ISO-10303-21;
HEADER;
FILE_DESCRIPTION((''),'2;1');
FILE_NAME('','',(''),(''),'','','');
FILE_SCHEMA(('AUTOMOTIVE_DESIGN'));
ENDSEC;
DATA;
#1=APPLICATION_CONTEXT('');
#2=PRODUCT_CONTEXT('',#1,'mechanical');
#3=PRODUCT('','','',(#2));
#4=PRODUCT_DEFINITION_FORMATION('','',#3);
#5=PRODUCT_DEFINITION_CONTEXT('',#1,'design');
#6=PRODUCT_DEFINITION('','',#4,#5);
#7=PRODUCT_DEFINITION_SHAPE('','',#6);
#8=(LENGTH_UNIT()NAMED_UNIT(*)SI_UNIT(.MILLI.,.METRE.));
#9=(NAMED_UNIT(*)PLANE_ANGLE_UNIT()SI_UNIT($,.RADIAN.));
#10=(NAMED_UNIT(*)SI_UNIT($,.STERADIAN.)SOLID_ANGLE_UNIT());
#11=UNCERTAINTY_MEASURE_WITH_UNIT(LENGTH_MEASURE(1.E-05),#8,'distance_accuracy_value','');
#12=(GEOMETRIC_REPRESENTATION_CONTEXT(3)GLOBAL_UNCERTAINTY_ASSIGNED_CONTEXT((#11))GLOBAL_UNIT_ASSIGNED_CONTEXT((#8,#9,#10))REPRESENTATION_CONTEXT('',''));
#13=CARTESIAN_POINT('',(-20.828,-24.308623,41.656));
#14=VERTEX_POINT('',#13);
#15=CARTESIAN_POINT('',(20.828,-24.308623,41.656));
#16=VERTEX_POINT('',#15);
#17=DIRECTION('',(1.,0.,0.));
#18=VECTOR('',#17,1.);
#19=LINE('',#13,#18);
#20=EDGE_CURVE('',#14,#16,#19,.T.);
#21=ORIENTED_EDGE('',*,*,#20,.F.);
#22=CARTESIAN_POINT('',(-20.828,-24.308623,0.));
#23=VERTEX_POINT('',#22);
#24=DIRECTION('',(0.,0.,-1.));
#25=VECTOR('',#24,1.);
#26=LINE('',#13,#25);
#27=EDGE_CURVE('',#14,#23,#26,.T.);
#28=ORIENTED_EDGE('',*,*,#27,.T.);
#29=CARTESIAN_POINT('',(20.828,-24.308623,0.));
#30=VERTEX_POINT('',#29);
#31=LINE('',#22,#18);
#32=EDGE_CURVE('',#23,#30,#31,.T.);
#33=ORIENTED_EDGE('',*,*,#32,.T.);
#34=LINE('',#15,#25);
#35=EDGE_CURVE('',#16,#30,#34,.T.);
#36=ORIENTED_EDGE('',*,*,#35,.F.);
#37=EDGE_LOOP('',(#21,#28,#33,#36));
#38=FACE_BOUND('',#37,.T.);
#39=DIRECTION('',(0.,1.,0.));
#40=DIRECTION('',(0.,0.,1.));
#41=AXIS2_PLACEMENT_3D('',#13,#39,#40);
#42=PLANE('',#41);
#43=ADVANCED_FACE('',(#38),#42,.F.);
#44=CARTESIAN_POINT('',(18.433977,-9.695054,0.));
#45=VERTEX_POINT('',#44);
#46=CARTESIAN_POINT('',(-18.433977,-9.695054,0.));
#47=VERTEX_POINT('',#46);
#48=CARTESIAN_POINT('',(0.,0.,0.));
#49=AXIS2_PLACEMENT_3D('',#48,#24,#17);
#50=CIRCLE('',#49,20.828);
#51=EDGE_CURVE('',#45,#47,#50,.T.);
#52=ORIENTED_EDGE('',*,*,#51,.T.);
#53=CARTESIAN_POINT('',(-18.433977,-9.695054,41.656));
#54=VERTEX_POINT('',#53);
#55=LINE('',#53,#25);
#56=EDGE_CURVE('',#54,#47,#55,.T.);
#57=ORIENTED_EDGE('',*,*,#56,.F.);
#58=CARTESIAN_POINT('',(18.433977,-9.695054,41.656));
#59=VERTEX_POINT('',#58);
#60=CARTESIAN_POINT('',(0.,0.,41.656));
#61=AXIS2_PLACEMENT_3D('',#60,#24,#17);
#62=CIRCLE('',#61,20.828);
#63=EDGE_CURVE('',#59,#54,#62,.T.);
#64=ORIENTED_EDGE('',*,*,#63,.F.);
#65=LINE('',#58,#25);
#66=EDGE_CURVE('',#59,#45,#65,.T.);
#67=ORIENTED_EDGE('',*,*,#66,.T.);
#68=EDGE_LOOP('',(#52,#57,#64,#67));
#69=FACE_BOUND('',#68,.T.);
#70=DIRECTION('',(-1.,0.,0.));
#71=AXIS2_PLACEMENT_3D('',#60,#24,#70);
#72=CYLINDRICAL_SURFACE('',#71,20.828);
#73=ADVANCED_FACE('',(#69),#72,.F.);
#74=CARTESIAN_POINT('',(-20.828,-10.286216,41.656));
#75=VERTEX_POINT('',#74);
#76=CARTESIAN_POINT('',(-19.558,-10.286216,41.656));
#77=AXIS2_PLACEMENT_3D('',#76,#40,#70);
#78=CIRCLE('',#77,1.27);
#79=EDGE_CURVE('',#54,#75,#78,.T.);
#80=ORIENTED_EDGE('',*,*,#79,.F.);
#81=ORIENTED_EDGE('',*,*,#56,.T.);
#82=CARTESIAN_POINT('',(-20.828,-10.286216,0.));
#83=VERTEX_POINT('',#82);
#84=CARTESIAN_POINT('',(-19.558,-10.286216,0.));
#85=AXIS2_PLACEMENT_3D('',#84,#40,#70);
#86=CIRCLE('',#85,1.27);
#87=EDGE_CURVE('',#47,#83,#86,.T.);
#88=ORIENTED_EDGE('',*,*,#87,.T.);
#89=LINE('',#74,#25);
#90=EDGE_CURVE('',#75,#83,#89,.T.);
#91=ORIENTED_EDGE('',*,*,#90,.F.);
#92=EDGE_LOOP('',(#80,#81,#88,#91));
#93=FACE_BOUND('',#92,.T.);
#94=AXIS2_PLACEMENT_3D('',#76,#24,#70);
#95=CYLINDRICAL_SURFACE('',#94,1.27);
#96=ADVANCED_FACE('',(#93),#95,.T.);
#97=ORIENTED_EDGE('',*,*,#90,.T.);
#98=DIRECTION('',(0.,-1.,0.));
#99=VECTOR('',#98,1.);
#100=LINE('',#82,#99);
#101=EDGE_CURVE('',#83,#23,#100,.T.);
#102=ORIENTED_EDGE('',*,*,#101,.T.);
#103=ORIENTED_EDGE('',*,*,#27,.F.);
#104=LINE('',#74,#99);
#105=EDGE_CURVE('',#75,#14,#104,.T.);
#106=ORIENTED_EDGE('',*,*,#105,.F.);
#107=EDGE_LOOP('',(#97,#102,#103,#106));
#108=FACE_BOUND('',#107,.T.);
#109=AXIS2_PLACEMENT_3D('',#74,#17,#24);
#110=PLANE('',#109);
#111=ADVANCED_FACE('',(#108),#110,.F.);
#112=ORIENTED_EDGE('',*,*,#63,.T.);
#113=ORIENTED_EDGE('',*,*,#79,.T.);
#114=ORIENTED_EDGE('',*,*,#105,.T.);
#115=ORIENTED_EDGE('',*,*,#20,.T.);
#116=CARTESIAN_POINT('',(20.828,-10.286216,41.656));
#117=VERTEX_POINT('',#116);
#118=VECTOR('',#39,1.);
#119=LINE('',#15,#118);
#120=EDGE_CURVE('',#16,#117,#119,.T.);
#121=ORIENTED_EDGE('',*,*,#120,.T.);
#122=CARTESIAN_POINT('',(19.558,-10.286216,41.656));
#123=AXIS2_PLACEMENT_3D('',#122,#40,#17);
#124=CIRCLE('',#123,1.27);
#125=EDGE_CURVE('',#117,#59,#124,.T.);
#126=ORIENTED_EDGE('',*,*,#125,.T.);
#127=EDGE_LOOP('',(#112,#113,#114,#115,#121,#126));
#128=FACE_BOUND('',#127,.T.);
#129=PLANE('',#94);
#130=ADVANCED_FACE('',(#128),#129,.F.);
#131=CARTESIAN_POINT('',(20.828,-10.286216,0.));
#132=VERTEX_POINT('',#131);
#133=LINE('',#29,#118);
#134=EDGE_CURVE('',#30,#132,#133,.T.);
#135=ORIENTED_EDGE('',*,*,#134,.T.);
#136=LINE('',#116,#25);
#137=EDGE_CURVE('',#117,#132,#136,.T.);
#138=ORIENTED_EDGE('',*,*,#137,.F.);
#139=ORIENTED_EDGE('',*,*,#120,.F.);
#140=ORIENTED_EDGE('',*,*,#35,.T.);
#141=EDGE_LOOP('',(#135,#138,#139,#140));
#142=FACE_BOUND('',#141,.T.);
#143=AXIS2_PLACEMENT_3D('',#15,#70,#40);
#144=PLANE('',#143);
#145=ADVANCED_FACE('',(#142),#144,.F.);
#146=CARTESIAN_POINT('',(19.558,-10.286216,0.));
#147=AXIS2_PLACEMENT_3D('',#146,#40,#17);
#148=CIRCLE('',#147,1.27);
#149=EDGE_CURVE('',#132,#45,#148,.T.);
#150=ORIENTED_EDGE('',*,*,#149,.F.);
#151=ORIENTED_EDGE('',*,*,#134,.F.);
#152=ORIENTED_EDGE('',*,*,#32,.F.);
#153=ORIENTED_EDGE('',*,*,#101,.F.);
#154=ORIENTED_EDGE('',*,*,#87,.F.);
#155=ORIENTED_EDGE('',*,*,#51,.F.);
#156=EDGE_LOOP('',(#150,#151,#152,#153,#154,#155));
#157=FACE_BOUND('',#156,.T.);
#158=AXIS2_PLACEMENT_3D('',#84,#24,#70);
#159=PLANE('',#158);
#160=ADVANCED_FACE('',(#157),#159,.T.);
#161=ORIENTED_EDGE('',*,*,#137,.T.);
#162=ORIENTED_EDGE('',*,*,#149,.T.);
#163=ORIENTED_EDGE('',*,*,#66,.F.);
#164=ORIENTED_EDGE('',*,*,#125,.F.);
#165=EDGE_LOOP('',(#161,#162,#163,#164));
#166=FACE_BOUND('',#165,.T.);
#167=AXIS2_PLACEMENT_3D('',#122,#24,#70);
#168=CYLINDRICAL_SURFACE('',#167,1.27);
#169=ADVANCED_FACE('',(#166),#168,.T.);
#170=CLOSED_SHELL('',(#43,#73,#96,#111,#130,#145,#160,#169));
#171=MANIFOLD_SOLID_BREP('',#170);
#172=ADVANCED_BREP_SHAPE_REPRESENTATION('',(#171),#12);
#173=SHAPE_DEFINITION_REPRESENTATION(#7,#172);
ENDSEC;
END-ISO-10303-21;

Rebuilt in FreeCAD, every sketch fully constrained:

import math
import FreeCAD as App
import Part
import Sketcher

V = App.Vector
Q = App.Units.Quantity

doc = App.newDocument("Part")
body = doc.addObject("PartDesign::Body", "Body")

# Sketch on XY plane
sketch1 = doc.addObject("Sketcher::SketchObject", "Sketch")
body.addObject(sketch1)
sketch1.AttachmentSupport = (doc.XY_Plane, [""])
sketch1.MapMode = "FlatFace"
sketch1.addGeometry(Part.LineSegment(V(-20.8, -10.3, 0), V(-20.8, -24.3, 0)), False)
sketch1.addGeometry(Part.LineSegment(V(-20.8, -24.3, 0), V(20.8, -24.3, 0)), False)
sketch1.addGeometry(Part.LineSegment(V(20.8, -24.3, 0), V(20.8, -10.3, 0)), False)
sketch1.addGeometry(Part.ArcOfCircle(Part.Circle(V(19.6, -10.3, 0), V(0, 0, 1), 1.3), math.radians(0), math.radians(152)), False)
sketch1.addGeometry(Part.ArcOfCircle(Part.Circle(V(0, 0, 0), V(0, 0, 1), 20.8), math.radians(-152), math.radians(-28)), False)
sketch1.addGeometry(Part.ArcOfCircle(Part.Circle(V(-19.6, -10.3, 0), V(0, 0, 1), 1.3), math.radians(28), math.radians(180)), False)
sketch1.addConstraint(Sketcher.Constraint("Coincident", 0, 2, 1, 1))
sketch1.addConstraint(Sketcher.Constraint("Coincident", 1, 2, 2, 1))
sketch1.addConstraint(Sketcher.Constraint("Tangent", 2, 2, 3, 1))
sketch1.addConstraint(Sketcher.Constraint("Tangent", 3, 2, 4, 2))
sketch1.addConstraint(Sketcher.Constraint("Tangent", 4, 1, 5, 1))
sketch1.addConstraint(Sketcher.Constraint("Tangent", 5, 2, 0, 1))
sketch1.addConstraint(Sketcher.Constraint("Vertical", 0))
sketch1.addConstraint(Sketcher.Constraint("Horizontal", 1))
sketch1.addConstraint(Sketcher.Constraint("Vertical", 2))
sketch1.addConstraint(Sketcher.Constraint("Coincident", 4, 3, -1, 1))
sketch1.addConstraint(Sketcher.Constraint("Equal", 3, 5))
sketch1.addConstraint(Sketcher.Constraint("Horizontal", 3, 3, 5, 3))
sketch1.addConstraint(Sketcher.Constraint("Radius", 3, Q("0.05 in")))
sketch1.addConstraint(Sketcher.Constraint("Radius", 4, Q("0.82 in")))
sketch1.addConstraint(Sketcher.Constraint("DistanceX", 1, 1, 1, 2, Q("1.64 in")))
sketch1.addConstraint(Sketcher.Constraint("DistanceY", 0, 2, 0, 1, Q("14.022407 mm")))
pad1 = doc.addObject("PartDesign::Pad", "Pad")
body.addObject(pad1)
pad1.Profile = sketch1
pad1.Length = Q("1.64 in")

doc.recompute()
